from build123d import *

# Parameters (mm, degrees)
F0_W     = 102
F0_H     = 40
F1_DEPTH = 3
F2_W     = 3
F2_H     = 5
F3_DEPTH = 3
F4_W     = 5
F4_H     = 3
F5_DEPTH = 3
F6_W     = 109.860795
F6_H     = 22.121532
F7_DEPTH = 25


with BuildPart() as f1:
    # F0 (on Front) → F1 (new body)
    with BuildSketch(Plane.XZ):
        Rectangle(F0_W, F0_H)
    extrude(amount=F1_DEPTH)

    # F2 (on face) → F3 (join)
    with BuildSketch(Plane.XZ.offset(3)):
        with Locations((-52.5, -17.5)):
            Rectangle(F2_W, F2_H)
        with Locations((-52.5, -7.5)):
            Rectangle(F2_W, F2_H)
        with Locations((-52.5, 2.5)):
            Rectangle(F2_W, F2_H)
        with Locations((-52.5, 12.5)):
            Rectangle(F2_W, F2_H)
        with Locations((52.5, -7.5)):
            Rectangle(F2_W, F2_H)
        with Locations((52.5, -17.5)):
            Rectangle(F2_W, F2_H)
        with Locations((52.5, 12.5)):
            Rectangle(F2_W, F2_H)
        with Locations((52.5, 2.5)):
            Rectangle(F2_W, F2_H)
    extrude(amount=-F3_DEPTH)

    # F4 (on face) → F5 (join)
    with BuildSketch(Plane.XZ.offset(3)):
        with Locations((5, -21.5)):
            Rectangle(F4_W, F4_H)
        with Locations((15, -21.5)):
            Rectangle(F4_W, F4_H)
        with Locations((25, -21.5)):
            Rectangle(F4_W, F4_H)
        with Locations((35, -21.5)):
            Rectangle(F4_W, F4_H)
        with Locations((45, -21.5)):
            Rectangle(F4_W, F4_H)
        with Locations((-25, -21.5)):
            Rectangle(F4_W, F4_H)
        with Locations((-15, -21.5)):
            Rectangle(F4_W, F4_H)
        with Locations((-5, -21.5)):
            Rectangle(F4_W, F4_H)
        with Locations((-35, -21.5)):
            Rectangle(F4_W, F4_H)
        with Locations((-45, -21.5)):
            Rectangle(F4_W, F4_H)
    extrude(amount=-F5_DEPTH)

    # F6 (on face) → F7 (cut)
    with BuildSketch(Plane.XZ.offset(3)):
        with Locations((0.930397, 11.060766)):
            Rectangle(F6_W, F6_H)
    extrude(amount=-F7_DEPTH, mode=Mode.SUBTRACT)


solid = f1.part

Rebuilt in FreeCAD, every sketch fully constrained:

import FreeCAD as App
import Part
import Sketcher
from FreeCAD import Vector

doc = App.newDocument("Part")
params = doc.addObject("Spreadsheet::Sheet", "Params")
for row, (alias, value) in enumerate([
    ("sketch1_width", "102 mm"),
    ("sketch1_height", "40 mm"),
    ("pad1_length", "3 mm"),
    ("sketch2_width", "3 mm"),
    ("sketch2_height", "5 mm"),
    ("pad2_length", "3 mm"),
    ("sketch3_width", "5 mm"),
    ("sketch3_height", "3 mm"),
    ("pad3_length", "3 mm"),
    ("pocket1_length", "25 mm"),
], start=1):
    params.set(f"A{row}", alias)
    params.set(f"B{row}", "=" + value)
    params.setAlias(f"B{row}", alias)

body = doc.addObject("PartDesign::Body", "Body")

# Sketch on XZ plane
sketch1 = body.newObject("Sketcher::SketchObject", "Sketch")
sketch1.AttachmentSupport = (doc.getObject("XZ_Plane"), [""])
sketch1.MapMode = "FlatFace"
sketch1.addGeometry([
    Part.LineSegment(Vector(-51, 20, 0), Vector(-51, -20, 0)),
    Part.LineSegment(Vector(-51, -20, 0), Vector(51, -20, 0)),
    Part.LineSegment(Vector(51, -20, 0), Vector(51, 20, 0)),
    Part.LineSegment(Vector(51, 20, 0), Vector(-51, 20, 0)),
], False)
sketch1.addConstraint([
    Sketcher.Constraint("Coincident", 0, 2, 1, 1),
    Sketcher.Constraint("Coincident", 1, 2, 2, 1),
    Sketcher.Constraint("Coincident", 2, 2, 3, 1),
    Sketcher.Constraint("Coincident", 3, 2, 0, 1),
    Sketcher.Constraint("Vertical", 0),
    Sketcher.Constraint("Horizontal", 1),
    Sketcher.Constraint("Vertical", 2),
    Sketcher.Constraint("Horizontal", 3),
    Sketcher.Constraint("Symmetric", 0, 2, 2, 2, -1, 1),
    Sketcher.Constraint("DistanceX", 1, 1, 1, 2, 102.0),
    Sketcher.Constraint("DistanceY", 0, 2, 0, 1, 40.0),
])
sketch1.setExpression("Constraints[9]", "Params.sketch1_width")
sketch1.setExpression("Constraints[10]", "Params.sketch1_height")
pad1 = body.newObject("PartDesign::Pad", "Pad")
pad1.Profile = sketch1
pad1.setExpression("Length", "Params.pad1_length")

# Sketch on XZ plane
sketch2 = body.newObject("Sketcher::SketchObject", "Sketch001")
sketch2.AttachmentSupport = (doc.getObject("XZ_Plane"), [""])
sketch2.MapMode = "FlatFace"
sketch2.AttachmentOffset = App.Placement(Vector(0, 0, 3), App.Rotation())
sketch2.addGeometry([
    Part.LineSegment(Vector(-54, -15, 0), Vector(-54, -20, 0)),  # 0
    Part.LineSegment(Vector(-54, -20, 0), Vector(-51, -20, 0)),  # 1
    Part.LineSegment(Vector(-51, -20, 0), Vector(-51, -15, 0)),  # 2
    Part.LineSegment(Vector(-51, -15, 0), Vector(-54, -15, 0)),  # 3
    Part.LineSegment(Vector(-54, -5, 0), Vector(-54, -10, 0)),  # 4
    Part.LineSegment(Vector(-54, -10, 0), Vector(-51, -10, 0)),  # 5
    Part.LineSegment(Vector(-51, -10, 0), Vector(-51, -5, 0)),  # 6
    Part.LineSegment(Vector(-51, -5, 0), Vector(-54, -5, 0)),  # 7
    Part.LineSegment(Vector(-54, 5, 0), Vector(-54, 0, 0)),  # 8
    Part.LineSegment(Vector(-54, 0, 0), Vector(-51, 0, 0)),  # 9
    Part.LineSegment(Vector(-51, 0, 0), Vector(-51, 5, 0)),  # 10
    Part.LineSegment(Vector(-51, 5, 0), Vector(-54, 5, 0)),  # 11
    Part.LineSegment(Vector(-54, 15, 0), Vector(-54, 10, 0)),  # 12
    Part.LineSegment(Vector(-54, 10, 0), Vector(-51, 10, 0)),  # 13
    Part.LineSegment(Vector(-51, 10, 0), Vector(-51, 15, 0)),  # 14
    Part.LineSegment(Vector(-51, 15, 0), Vector(-54, 15, 0)),  # 15
    Part.LineSegment(Vector(51, -5, 0), Vector(51, -10, 0)),  # 16
    Part.LineSegment(Vector(51, -10, 0), Vector(54, -10, 0)),  # 17
    Part.LineSegment(Vector(54, -10, 0), Vector(54, -5, 0)),  # 18
    Part.LineSegment(Vector(54, -5, 0), Vector(51, -5, 0)),  # 19
    Part.LineSegment(Vector(51, -15, 0), Vector(51, -20, 0)),  # 20
    Part.LineSegment(Vector(51, -20, 0), Vector(54, -20, 0)),  # 21
    Part.LineSegment(Vector(54, -20, 0), Vector(54, -15, 0)),  # 22
    Part.LineSegment(Vector(54, -15, 0), Vector(51, -15, 0)),  # 23
    Part.LineSegment(Vector(51, 15, 0), Vector(51, 10, 0)),  # 24
    Part.LineSegment(Vector(51, 10, 0), Vector(54, 10, 0)),  # 25
    Part.LineSegment(Vector(54, 10, 0), Vector(54, 15, 0)),  # 26
    Part.LineSegment(Vector(54, 15, 0), Vector(51, 15, 0)),  # 27
    Part.LineSegment(Vector(51, 5, 0), Vector(51, 0, 0)),  # 28
    Part.LineSegment(Vector(51, 0, 0), Vector(54, 0, 0)),  # 29
    Part.LineSegment(Vector(54, 0, 0), Vector(54, 5, 0)),  # 30
    Part.LineSegment(Vector(54, 5, 0), Vector(51, 5, 0)),  # 31
], False)
sketch2.addConstraint([
    Sketcher.Constraint("Coincident", 0, 2, 1, 1),
    Sketcher.Constraint("Coincident", 1, 2, 2, 1),
    Sketcher.Constraint("Coincident", 2, 2, 3, 1),
    Sketcher.Constraint("Coincident", 3, 2, 0, 1),
    Sketcher.Constraint("Coincident", 4, 2, 5, 1),
    Sketcher.Constraint("Coincident", 5, 2, 6, 1),
    Sketcher.Constraint("Coincident", 6, 2, 7, 1),
    Sketcher.Constraint("Coincident", 7, 2, 4, 1),
    Sketcher.Constraint("Coincident", 8, 2, 9, 1),
    Sketcher.Constraint("Coincident", 9, 2, 10, 1),
    Sketcher.Constraint("Coincident", 10, 2, 11, 1),
    Sketcher.Constraint("Coincident", 11, 2, 8, 1),
    Sketcher.Constraint("Coincident", 12, 2, 13, 1),
    Sketcher.Constraint("Coincident", 13, 2, 14, 1),
    Sketcher.Constraint("Coincident", 14, 2, 15, 1),
    Sketcher.Constraint("Coincident", 15, 2, 12, 1),
    Sketcher.Constraint("Coincident", 16, 2, 17, 1),
    Sketcher.Constraint("Coincident", 17, 2, 18, 1),
    Sketcher.Constraint("Coincident", 18, 2, 19, 1),
    Sketcher.Constraint("Coincident", 19, 2, 16, 1),
    Sketcher.Constraint("Coincident", 20, 2, 21, 1),
    Sketcher.Constraint("Coincident", 21, 2, 22, 1),
    Sketcher.Constraint("Coincident", 22, 2, 23, 1),
    Sketcher.Constraint("Coincident", 23, 2, 20, 1),
    Sketcher.Constraint("Coincident", 24, 2, 25, 1),
    Sketcher.Constraint("Coincident", 25, 2, 26, 1),
    Sketcher.Constraint("Coincident", 26, 2, 27, 1),
    Sketcher.Constraint("Coincident", 27, 2, 24, 1),
    Sketcher.Constraint("Coincident", 28, 2, 29, 1),
    Sketcher.Constraint("Coincident", 29, 2, 30, 1),
    Sketcher.Constraint("Coincident", 30, 2, 31, 1),
    Sketcher.Constraint("Coincident", 31, 2, 28, 1),
    Sketcher.Constraint("Vertical", 0),
    Sketcher.Constraint("Horizontal", 1),
    Sketcher.Constraint("Vertical", 2),
    Sketcher.Constraint("Horizontal", 3),
    Sketcher.Constraint("Vertical", 4),
    Sketcher.Constraint("Horizontal", 5),
    Sketcher.Constraint("Vertical", 6),
    Sketcher.Constraint("Horizontal", 7),
    Sketcher.Constraint("Vertical", 8),
    Sketcher.Constraint("Horizontal", 9),
    Sketcher.Constraint("Vertical", 10),
    Sketcher.Constraint("Horizontal", 11),
    Sketcher.Constraint("Vertical", 12),
    Sketcher.Constraint("Horizontal", 13),
    Sketcher.Constraint("Vertical", 14),
    Sketcher.Constraint("Horizontal", 15),
    Sketcher.Constraint("Vertical", 16),
    Sketcher.Constraint("Horizontal", 17),
    Sketcher.Constraint("Vertical", 18),
    Sketcher.Constraint("Horizontal", 19),
    Sketcher.Constraint("Vertical", 20),
    Sketcher.Constraint("Horizontal", 21),
    Sketcher.Constraint("Vertical", 22),
    Sketcher.Constraint("Horizontal", 23),
    Sketcher.Constraint("Vertical", 24),
    Sketcher.Constraint("Horizontal", 25),
    Sketcher.Constraint("Vertical", 26),
    Sketcher.Constraint("Horizontal", 27),
    Sketcher.Constraint("Vertical", 28),
    Sketcher.Constraint("Horizontal", 29),
    Sketcher.Constraint("Vertical", 30),
    Sketcher.Constraint("Horizontal", 31),
    Sketcher.Constraint("Symmetric", 13, 2, 16, 2, -1, 1),
    Sketcher.Constraint("Symmetric", 11, 2, 18, 2, -1, 1),
    Sketcher.Constraint("Symmetric", 15, 2, 22, 2, -1, 1),
    Sketcher.Constraint("Symmetric", 5, 2, 24, 2, -1, 1),
    Sketcher.Constraint("Symmetric", 3, 2, 26, 2, -1, 1),
    Sketcher.Constraint("Symmetric", 9, 2, 28, 2, -1, 1),
    Sketcher.Constraint("Symmetric", 7, 2, 30, 2, -1, 1),
    Sketcher.Constraint("Symmetric", 5, 2, 16, 2, -2),
    Sketcher.Constraint("Symmetric", 7, 2, 18, 2, -2),
    Sketcher.Constraint("Symmetric", 1, 2, 20, 2, -2),
    Sketcher.Constraint("Symmetric", 3, 2, 22, 2, -2),
    Sketcher.Constraint("PointOnObject", 8, 2, -1),
    Sketcher.Constraint("Vertical", 3, 2, 4, 2),
    Sketcher.Constraint("Vertical", 2, 2, 5, 2),
    Sketcher.Constraint("Vertical", 6, 2, 9, 2),
    Sketcher.Constraint("Equal", 2, 4),
    Sketcher.Constraint("Equal", 6, 8),
    Sketcher.Constraint("Equal", 10, 12),
    Sketcher.Constraint("DistanceX", 1, 1, 1, 2, 3.0),
    Sketcher.Constraint("DistanceY", 0, 2, 0, 1, 5.0),
    Sketcher.Constraint("DistanceX", 0, 2, -1, 1, 54.0),
])
sketch2.setExpression("Constraints[82]", "Params.sketch2_width")
sketch2.setExpression("Constraints[83]", "Params.sketch2_height")
pad2 = body.newObject("PartDesign::Pad", "Pad001")
pad2.Profile = sketch2
pad2.setExpression("Length", "Params.pad2_length")
pad2.Reversed = True

# Sketch on XZ plane
sketch3 = body.newObject("Sketcher::SketchObject", "Sketch002")
sketch3.AttachmentSupport = (doc.getObject("XZ_Plane"), [""])
sketch3.MapMode = "FlatFace"
sketch3.AttachmentOffset = App.Placement(Vector(0, 0, 3), App.Rotation())
sketch3.addGeometry([
    Part.LineSegment(Vector(2.5, -20, 0), Vector(2.5, -23, 0)),  # 0
    Part.LineSegment(Vector(2.5, -23, 0), Vector(7.5, -23, 0)),  # 1
    Part.LineSegment(Vector(7.5, -23, 0), Vector(7.5, -20, 0)),  # 2
    Part.LineSegment(Vector(7.5, -20, 0), Vector(2.5, -20, 0)),  # 3
    Part.LineSegment(Vector(12.5, -20, 0), Vector(12.5, -23, 0)),  # 4
    Part.LineSegment(Vector(12.5, -23, 0), Vector(17.5, -23, 0)),  # 5
    Part.LineSegment(Vector(17.5, -23, 0), Vector(17.5, -20, 0)),  # 6
    Part.LineSegment(Vector(17.5, -20, 0), Vector(12.5, -20, 0)),  # 7
    Part.LineSegment(Vector(22.5, -20, 0), Vector(22.5, -23, 0)),  # 8
    Part.LineSegment(Vector(22.5, -23, 0), Vector(27.5, -23, 0)),  # 9
    Part.LineSegment(Vector(27.5, -23, 0), Vector(27.5, -20, 0)),  # 10
    Part.LineSegment(Vector(27.5, -20, 0), Vector(22.5, -20, 0)),  # 11
    Part.LineSegment(Vector(32.5, -20, 0), Vector(32.5, -23, 0)),  # 12
    Part.LineSegment(Vector(32.5, -23, 0), Vector(37.5, -23, 0)),  # 13
    Part.LineSegment(Vector(37.5, -23, 0), Vector(37.5, -20, 0)),  # 14
    Part.LineSegment(Vector(37.5, -20, 0), Vector(32.5, -20, 0)),  # 15
    Part.LineSegment(Vector(42.5, -20, 0), Vector(42.5, -23, 0)),  # 16
    Part.LineSegment(Vector(42.5, -23, 0), Vector(47.5, -23, 0)),  # 17
    Part.LineSegment(Vector(47.5, -23, 0), Vector(47.5, -20, 0)),  # 18
    Part.LineSegment(Vector(47.5, -20, 0), Vector(42.5, -20, 0)),  # 19
    Part.LineSegment(Vector(-27.5, -20, 0), Vector(-27.5, -23, 0)),  # 20
    Part.LineSegment(Vector(-27.5, -23, 0), Vector(-22.5, -23, 0)),  # 21
    Part.LineSegment(Vector(-22.5, -23, 0), Vector(-22.5, -20, 0)),  # 22
    Part.LineSegment(Vector(-22.5, -20, 0), Vector(-27.5, -20, 0)),  # 23
    Part.LineSegment(Vector(-17.5, -20, 0), Vector(-17.5, -23, 0)),  # 24
    Part.LineSegment(Vector(-17.5, -23, 0), Vector(-12.5, -23, 0)),  # 25
    Part.LineSegment(Vector(-12.5, -23, 0), Vector(-12.5, -20, 0)),  # 26
    Part.LineSegment(Vector(-12.5, -20, 0), Vector(-17.5, -20, 0)),  # 27
    Part.LineSegment(Vector(-7.5, -20, 0), Vector(-7.5, -23, 0)),  # 28
    Part.LineSegment(Vector(-7.5, -23, 0), Vector(-2.5, -23, 0)),  # 29
    Part.LineSegment(Vector(-2.5, -23, 0), Vector(-2.5, -20, 0)),  # 30
    Part.LineSegment(Vector(-2.5, -20, 0), Vector(-7.5, -20, 0)),  # 31
    Part.LineSegment(Vector(-37.5, -20, 0), Vector(-37.5, -23, 0)),  # 32
    Part.LineSegment(Vector(-37.5, -23, 0), Vector(-32.5, -23, 0)),  # 33
    Part.LineSegment(Vector(-32.5, -23, 0), Vector(-32.5, -20, 0)),  # 34
    Part.LineSegment(Vector(-32.5, -20, 0), Vector(-37.5, -20, 0)),  # 35
    Part.LineSegment(Vector(-47.5, -20, 0), Vector(-47.5, -23, 0)),  # 36
    Part.LineSegment(Vector(-47.5, -23, 0), Vector(-42.5, -23, 0)),  # 37
    Part.LineSegment(Vector(-42.5, -23, 0), Vector(-42.5, -20, 0)),  # 38
    Part.LineSegment(Vector(-42.5, -20, 0), Vector(-47.5, -20, 0)),  # 39
], False)
sketch3.addConstraint([
    Sketcher.Constraint("Coincident", 0, 2, 1, 1),
    Sketcher.Constraint("Coincident", 1, 2, 2, 1),
    Sketcher.Constraint("Coincident", 2, 2, 3, 1),
    Sketcher.Constraint("Coincident", 3, 2, 0, 1),
    Sketcher.Constraint("Coincident", 4, 2, 5, 1),
    Sketcher.Constraint("Coincident", 5, 2, 6, 1),
    Sketcher.Constraint("Coincident", 6, 2, 7, 1),
    Sketcher.Constraint("Coincident", 7, 2, 4, 1),
    Sketcher.Constraint("Coincident", 8, 2, 9, 1),
    Sketcher.Constraint("Coincident", 9, 2, 10, 1),
    Sketcher.Constraint("Coincident", 10, 2, 11, 1),
    Sketcher.Constraint("Coincident", 11, 2, 8, 1),
    Sketcher.Constraint("Coincident", 12, 2, 13, 1),
    Sketcher.Constraint("Coincident", 13, 2, 14, 1),
    Sketcher.Constraint("Coincident", 14, 2, 15, 1),
    Sketcher.Constraint("Coincident", 15, 2, 12, 1),
    Sketcher.Constraint("Coincident", 16, 2, 17, 1),
    Sketcher.Constraint("Coincident", 17, 2, 18, 1),
    Sketcher.Constraint("Coincident", 18, 2, 19, 1),
    Sketcher.Constraint("Coincident", 19, 2, 16, 1),
    Sketcher.Constraint("Coincident", 20, 2, 21, 1),
    Sketcher.Constraint("Coincident", 21, 2, 22, 1),
    Sketcher.Constraint("Coincident", 22, 2, 23, 1),
    Sketcher.Constraint("Coincident", 23, 2, 20, 1),
    Sketcher.Constraint("Coincident", 24, 2, 25, 1),
    Sketcher.Constraint("Coincident", 25, 2, 26, 1),
    Sketcher.Constraint("Coincident", 26, 2, 27, 1),
    Sketcher.Constraint("Coincident", 27, 2, 24, 1),
    Sketcher.Constraint("Coincident", 28, 2, 29, 1),
    Sketcher.Constraint("Coincident", 29, 2, 30, 1),
    Sketcher.Constraint("Coincident", 30, 2, 31, 1),
    Sketcher.Constraint("Coincident", 31, 2, 28, 1),
    Sketcher.Constraint("Coincident", 32, 2, 33, 1),
    Sketcher.Constraint("Coincident", 33, 2, 34, 1),
    Sketcher.Constraint("Coincident", 34, 2, 35, 1),
    Sketcher.Constraint("Coincident", 35, 2, 32, 1),
    Sketcher.Constraint("Coincident", 36, 2, 37, 1),
    Sketcher.Constraint("Coincident", 37, 2, 38, 1),
    Sketcher.Constraint("Coincident", 38, 2, 39, 1),
    Sketcher.Constraint("Coincident", 39, 2, 36, 1),
    Sketcher.Constraint("Vertical", 0),
    Sketcher.Constraint("Horizontal", 1),
    Sketcher.Constraint("Vertical", 2),
    Sketcher.Constraint("Horizontal", 3),
    Sketcher.Constraint("Vertical", 4),
    Sketcher.Constraint("Horizontal", 5),
    Sketcher.Constraint("Vertical", 6),
    Sketcher.Constraint("Horizontal", 7),
    Sketcher.Constraint("Vertical", 8),
    Sketcher.Constraint("Horizontal", 9),
    Sketcher.Constraint("Vertical", 10),
    Sketcher.Constraint("Horizontal", 11),
    Sketcher.Constraint("Vertical", 12),
    Sketcher.Constraint("Horizontal", 13),
    Sketcher.Constraint("Vertical", 14),
    Sketcher.Constraint("Horizontal", 15),
    Sketcher.Constraint("Vertical", 16),
    Sketcher.Constraint("Horizontal", 17),
    Sketcher.Constraint("Vertical", 18),
    Sketcher.Constraint("Horizontal", 19),
    Sketcher.Constraint("Vertical", 20),
    Sketcher.Constraint("Horizontal", 21),
    Sketcher.Constraint("Vertical", 22),
    Sketcher.Constraint("Horizontal", 23),
    Sketcher.Constraint("Vertical", 24),
    Sketcher.Constraint("Horizontal", 25),
    Sketcher.Constraint("Vertical", 26),
    Sketcher.Constraint("Horizontal", 27),
    Sketcher.Constraint("Vertical", 28),
    Sketcher.Constraint("Horizontal", 29),
    Sketcher.Constraint("Vertical", 30),
    Sketcher.Constraint("Horizontal", 31),
    Sketcher.Constraint("Vertical", 32),
    Sketcher.Constraint("Horizontal", 33),
    Sketcher.Constraint("Vertical", 34),
    Sketcher.Constraint("Horizontal", 35),
    Sketcher.Constraint("Vertical", 36),
    Sketcher.Constraint("Horizontal", 37),
    Sketcher.Constraint("Vertical", 38),
    Sketcher.Constraint("Horizontal", 39),
    Sketcher.Constraint("Symmetric", 9, 2, 20, 2, -2),
    Sketcher.Constraint("Symmetric", 11, 2, 22, 2, -2),
    Sketcher.Constraint("Symmetric", 5, 2, 24, 2, -2),
    Sketcher.Constraint("Symmetric", 7, 2, 26, 2, -2),
    Sketcher.Constraint("Symmetric", 1, 2, 28, 2, -2),
    Sketcher.Constraint("Symmetric", 3, 2, 30, 2, -2),
    Sketcher.Constraint("Symmetric", 13, 2, 32, 2, -2),
    Sketcher.Constraint("Symmetric", 15, 2, 34, 2, -2),
    Sketcher.Constraint("Symmetric", 17, 2, 36, 2, -2),
    Sketcher.Constraint("Symmetric", 19, 2, 38, 2, -2),
    Sketcher.Constraint("Horizontal", 1, 2, 4, 2),
    Sketcher.Constraint("Horizontal", 3, 2, 6, 2),
    Sketcher.Constraint("Horizontal", 5, 2, 8, 2),
    Sketcher.Constraint("Horizontal", 7, 2, 10, 2),
    Sketcher.Constraint("Horizontal", 9, 2, 12, 2),
    Sketcher.Constraint("Horizontal", 11, 2, 14, 2),
    Sketcher.Constraint("Horizontal", 13, 2, 16, 2),
    Sketcher.Constraint("Horizontal", 15, 2, 18, 2),
    Sketcher.Constraint("Equal", 3, 5),
    Sketcher.Constraint("Equal", 7, 9),
    Sketcher.Constraint("Equal", 11, 13),
    Sketcher.Constraint("Equal", 15, 17),
    Sketcher.Constraint("DistanceX", 1, 1, 1, 2, 5.0),
    Sketcher.Constraint("DistanceY", 0, 2, 0, 1, 3.0),
    Sketcher.Constraint("DistanceY", 0, 2, -1, 1, 23.0),
    Sketcher.Constraint("DistanceX", 1, 2, 4, 2, 5.0),
    Sketcher.Constraint("DistanceX", 5, 2, 8, 2, 5.0),
    Sketcher.Constraint("DistanceX", 9, 2, 12, 2, 5.0),
    Sketcher.Constraint("DistanceX", 13, 2, 16, 2, 5.0),
    Sketcher.Constraint("DistanceX", 20, 2, 0, 2, 30.0),
])
sketch3.setExpression("Constraints[102]", "Params.sketch3_width")
sketch3.setExpression("Constraints[103]", "Params.sketch3_height")
pad3 = body.newObject("PartDesign::Pad", "Pad002")
pad3.Profile = sketch3
pad3.setExpression("Length", "Params.pad3_length")
pad3.Reversed = True

# Sketch on XZ plane
sketch4 = body.newObject("Sketcher::SketchObject", "Sketch003")
sketch4.AttachmentSupport = (doc.getObject("XZ_Plane"), [""])
sketch4.MapMode = "FlatFace"
sketch4.AttachmentOffset = App.Placement(Vector(0, 0, 3), App.Rotation())
sketch4.addGeometry([
    Part.LineSegment(Vector(-54, 22, 0), Vector(-54, 0, 0)),
    Part.LineSegment(Vector(-54, 0, 0), Vector(56, 0, 0)),
    Part.LineSegment(Vector(56, 0, 0), Vector(56, 22, 0)),
    Part.LineSegment(Vector(56, 22, 0), Vector(-54, 22, 0)),
], False)
sketch4.addConstraint([
    Sketcher.Constraint("Coincident", 0, 2, 1, 1),
    Sketcher.Constraint("Coincident", 1, 2, 2, 1),
    Sketcher.Constraint("Coincident", 2, 2, 3, 1),
    Sketcher.Constraint("Coincident", 3, 2, 0, 1),
    Sketcher.Constraint("Vertical", 0),
    Sketcher.Constraint("Horizontal", 1),
    Sketcher.Constraint("Vertical", 2),
    Sketcher.Constraint("Horizontal", 3),
    Sketcher.Constraint("PointOnObject", 0, 2, -1),
    Sketcher.Constraint("DistanceX", 0, 2, -1, 1, 54.0),
    Sketcher.Constraint("DistanceY", 0, 2, 0, 1, 22.121532),
    Sketcher.Constraint("DistanceX", 1, 1, 1, 2, 109.860795),
])
pocket1 = body.newObject("PartDesign::Pocket", "Pocket")
pocket1.Profile = sketch4
pocket1.setExpression("Length", "Params.pocket1_length")

doc.recompute()
